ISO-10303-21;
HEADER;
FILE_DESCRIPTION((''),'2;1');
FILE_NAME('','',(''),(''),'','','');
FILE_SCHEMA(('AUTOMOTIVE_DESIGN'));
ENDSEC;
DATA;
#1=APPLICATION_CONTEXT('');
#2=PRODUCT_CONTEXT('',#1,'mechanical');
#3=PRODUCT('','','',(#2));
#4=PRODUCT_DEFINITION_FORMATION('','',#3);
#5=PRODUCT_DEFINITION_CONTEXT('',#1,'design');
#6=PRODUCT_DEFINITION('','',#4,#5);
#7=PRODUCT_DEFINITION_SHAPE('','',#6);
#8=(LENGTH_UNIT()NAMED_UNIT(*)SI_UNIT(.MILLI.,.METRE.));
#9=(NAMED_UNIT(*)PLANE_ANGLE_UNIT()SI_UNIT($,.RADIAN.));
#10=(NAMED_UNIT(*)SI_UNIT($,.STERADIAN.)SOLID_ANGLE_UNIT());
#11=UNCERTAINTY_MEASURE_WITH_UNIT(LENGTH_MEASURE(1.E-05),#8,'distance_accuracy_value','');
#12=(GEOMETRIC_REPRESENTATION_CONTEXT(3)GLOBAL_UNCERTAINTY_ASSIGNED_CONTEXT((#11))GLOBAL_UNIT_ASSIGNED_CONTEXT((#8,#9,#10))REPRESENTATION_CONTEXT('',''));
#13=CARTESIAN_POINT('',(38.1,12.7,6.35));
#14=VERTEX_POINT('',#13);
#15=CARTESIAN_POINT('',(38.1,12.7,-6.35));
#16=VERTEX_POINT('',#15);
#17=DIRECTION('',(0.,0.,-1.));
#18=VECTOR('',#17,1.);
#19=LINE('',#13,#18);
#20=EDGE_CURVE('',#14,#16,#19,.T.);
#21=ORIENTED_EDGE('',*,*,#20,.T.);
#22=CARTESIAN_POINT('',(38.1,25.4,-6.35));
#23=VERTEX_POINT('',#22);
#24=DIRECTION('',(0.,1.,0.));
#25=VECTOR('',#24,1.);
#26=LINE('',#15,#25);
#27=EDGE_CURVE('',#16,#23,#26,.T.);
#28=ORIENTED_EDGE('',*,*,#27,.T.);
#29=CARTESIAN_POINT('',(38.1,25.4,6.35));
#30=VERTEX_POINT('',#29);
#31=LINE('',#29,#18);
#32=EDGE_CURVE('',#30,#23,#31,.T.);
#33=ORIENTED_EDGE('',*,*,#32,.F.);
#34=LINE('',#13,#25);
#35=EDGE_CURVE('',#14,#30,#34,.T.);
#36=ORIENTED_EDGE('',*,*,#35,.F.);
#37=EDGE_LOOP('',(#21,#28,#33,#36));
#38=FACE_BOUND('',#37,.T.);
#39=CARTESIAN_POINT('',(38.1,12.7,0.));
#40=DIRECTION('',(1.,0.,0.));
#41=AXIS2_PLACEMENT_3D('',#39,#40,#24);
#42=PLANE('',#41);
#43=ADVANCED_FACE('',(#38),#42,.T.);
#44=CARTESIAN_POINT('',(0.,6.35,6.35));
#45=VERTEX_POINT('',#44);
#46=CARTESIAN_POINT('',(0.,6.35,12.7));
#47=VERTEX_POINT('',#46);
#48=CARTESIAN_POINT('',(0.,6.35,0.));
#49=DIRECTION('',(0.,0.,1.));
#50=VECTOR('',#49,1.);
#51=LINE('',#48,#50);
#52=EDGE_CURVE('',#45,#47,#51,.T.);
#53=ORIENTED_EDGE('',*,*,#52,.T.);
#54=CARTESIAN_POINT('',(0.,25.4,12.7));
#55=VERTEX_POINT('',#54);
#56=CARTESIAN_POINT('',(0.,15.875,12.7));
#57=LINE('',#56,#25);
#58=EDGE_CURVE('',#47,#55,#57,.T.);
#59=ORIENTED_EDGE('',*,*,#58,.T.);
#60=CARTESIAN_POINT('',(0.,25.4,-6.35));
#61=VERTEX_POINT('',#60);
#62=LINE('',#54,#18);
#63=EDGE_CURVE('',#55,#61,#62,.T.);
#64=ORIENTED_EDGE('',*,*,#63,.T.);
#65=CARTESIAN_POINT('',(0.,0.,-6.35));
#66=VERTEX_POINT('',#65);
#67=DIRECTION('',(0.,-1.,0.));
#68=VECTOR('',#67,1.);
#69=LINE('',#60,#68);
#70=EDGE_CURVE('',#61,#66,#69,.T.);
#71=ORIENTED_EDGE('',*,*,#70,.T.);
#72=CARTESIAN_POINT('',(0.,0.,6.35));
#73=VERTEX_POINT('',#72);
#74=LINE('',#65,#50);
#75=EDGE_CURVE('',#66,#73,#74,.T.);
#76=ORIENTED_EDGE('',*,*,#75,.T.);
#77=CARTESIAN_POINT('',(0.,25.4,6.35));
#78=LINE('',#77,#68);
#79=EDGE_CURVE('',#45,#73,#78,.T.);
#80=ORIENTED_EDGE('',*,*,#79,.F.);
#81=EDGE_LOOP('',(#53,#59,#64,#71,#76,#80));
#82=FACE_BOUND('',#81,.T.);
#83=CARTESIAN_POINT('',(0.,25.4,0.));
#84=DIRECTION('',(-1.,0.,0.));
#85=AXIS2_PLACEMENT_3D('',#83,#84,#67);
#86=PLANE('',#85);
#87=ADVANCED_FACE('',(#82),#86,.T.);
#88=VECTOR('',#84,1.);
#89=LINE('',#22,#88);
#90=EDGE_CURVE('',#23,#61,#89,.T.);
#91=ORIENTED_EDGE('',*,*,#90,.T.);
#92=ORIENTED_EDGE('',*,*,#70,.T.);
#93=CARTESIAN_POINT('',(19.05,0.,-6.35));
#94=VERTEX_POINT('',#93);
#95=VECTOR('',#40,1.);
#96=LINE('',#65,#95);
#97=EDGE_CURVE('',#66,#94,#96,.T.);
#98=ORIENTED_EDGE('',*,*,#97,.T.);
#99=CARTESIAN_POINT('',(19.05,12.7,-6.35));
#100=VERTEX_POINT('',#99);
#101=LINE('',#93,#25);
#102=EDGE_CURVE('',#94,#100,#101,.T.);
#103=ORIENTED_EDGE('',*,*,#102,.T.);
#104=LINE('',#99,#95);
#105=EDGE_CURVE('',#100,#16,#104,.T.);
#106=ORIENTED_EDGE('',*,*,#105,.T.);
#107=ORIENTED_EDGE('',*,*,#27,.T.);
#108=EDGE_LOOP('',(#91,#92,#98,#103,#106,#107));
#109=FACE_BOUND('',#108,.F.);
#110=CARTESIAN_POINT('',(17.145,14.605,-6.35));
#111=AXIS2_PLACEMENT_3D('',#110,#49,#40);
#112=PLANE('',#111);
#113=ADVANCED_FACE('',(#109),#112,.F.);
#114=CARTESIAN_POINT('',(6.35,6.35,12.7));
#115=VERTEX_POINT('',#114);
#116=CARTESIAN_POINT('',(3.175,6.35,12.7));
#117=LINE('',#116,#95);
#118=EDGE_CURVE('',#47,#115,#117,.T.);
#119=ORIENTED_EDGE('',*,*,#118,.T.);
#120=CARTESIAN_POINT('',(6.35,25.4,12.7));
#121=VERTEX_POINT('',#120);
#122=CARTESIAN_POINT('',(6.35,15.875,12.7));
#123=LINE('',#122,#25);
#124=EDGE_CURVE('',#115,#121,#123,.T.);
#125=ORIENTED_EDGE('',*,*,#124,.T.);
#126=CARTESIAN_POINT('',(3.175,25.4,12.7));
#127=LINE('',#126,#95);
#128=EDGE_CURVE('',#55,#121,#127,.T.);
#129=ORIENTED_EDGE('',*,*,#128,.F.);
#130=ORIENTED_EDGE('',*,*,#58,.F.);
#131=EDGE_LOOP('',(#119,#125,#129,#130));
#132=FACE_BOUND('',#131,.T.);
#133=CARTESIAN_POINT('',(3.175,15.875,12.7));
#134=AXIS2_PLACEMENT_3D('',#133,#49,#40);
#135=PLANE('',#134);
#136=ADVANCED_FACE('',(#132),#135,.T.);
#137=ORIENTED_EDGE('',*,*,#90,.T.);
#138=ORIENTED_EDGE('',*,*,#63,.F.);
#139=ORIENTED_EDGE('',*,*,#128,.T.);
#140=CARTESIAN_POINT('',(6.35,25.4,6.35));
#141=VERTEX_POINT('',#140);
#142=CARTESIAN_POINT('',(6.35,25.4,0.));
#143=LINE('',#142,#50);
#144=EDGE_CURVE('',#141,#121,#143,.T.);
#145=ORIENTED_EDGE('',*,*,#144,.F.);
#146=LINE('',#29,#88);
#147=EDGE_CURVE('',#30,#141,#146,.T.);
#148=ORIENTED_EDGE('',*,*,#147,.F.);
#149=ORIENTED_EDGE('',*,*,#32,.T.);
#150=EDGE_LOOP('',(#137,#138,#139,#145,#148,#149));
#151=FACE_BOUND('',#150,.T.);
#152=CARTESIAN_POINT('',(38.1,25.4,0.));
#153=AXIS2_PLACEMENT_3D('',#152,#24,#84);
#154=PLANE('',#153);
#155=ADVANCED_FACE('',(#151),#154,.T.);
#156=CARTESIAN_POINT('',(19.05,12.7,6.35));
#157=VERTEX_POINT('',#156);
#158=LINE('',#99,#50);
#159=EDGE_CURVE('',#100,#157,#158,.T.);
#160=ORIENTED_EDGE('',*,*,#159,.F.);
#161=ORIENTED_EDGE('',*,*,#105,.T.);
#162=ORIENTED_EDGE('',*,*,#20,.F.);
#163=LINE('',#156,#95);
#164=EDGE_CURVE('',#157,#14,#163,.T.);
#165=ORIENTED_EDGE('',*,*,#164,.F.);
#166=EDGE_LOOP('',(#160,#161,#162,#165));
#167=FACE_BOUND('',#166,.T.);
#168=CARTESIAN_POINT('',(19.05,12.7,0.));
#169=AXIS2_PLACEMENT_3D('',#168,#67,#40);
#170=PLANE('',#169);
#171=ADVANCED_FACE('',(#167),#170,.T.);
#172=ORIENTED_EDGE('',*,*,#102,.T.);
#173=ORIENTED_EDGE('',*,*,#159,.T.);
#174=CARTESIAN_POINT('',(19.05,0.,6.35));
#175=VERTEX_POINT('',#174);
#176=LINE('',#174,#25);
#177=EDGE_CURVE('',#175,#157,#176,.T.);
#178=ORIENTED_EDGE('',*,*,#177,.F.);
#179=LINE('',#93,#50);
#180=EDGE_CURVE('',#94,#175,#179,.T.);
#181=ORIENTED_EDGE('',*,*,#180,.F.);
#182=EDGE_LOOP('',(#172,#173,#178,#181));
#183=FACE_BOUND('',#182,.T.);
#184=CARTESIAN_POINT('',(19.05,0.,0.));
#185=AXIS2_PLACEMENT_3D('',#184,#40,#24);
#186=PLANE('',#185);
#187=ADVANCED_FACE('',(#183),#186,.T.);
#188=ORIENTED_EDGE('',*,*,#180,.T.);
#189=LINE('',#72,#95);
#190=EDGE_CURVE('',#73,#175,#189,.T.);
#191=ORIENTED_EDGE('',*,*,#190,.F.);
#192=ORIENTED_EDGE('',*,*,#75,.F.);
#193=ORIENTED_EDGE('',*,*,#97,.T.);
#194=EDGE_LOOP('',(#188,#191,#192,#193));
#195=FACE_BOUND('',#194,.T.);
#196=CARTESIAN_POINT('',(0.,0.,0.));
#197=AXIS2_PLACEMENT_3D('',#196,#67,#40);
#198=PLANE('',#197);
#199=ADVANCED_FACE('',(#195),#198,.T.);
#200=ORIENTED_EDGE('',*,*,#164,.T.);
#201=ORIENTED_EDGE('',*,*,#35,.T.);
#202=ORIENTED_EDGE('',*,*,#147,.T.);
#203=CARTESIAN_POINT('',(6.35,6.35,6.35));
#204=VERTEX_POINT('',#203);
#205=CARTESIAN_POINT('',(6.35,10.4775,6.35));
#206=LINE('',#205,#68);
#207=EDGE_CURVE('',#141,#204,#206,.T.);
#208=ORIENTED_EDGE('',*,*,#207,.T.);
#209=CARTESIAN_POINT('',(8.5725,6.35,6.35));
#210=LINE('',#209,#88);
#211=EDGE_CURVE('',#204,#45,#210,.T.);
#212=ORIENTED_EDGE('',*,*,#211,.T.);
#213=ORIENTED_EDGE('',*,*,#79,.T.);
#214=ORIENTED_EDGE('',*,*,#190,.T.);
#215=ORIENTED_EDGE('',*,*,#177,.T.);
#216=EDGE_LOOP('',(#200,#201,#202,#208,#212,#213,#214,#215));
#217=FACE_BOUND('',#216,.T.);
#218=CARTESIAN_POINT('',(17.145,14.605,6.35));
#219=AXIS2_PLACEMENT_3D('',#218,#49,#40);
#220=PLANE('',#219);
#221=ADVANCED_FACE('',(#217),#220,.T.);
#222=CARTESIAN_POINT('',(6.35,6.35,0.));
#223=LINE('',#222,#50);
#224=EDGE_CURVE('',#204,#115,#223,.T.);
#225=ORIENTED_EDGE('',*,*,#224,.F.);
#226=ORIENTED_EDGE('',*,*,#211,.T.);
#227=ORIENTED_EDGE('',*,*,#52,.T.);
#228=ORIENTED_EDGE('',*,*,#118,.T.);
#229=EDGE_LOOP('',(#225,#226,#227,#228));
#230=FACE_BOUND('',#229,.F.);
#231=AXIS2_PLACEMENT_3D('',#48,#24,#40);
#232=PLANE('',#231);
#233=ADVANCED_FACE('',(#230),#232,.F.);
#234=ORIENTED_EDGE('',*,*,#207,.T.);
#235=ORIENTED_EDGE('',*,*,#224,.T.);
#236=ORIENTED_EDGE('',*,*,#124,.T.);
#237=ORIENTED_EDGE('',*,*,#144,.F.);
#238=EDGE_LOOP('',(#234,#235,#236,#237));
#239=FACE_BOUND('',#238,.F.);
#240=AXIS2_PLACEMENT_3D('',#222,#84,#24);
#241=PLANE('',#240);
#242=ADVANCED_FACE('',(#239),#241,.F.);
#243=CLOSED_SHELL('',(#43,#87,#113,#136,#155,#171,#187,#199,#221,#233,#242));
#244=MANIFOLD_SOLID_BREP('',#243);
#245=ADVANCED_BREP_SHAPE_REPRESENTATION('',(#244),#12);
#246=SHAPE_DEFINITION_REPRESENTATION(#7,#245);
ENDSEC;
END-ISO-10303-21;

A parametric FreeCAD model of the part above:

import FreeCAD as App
import Part
import Sketcher
Q = App.Units.Quantity

doc = App.newDocument("Part")
body = doc.addObject("PartDesign::Body", "Body")

# Sketch on XY plane
sketch1 = body.newObject("Sketcher::SketchObject", "Sketch")
sketch1.AttachmentSupport = (doc.getObject("XY_Plane"), [""])
sketch1.MapMode = "FlatFace"
sketch1.addGeometry([
    Part.LineSegment(App.Vector(0, 25.4, 0), App.Vector(0, 0, 0)),  # 0
    Part.LineSegment(App.Vector(0, 0, 0), App.Vector(19.05, 0, 0)),  # 1
    Part.LineSegment(App.Vector(19.05, 0, 0), App.Vector(19.05, 12.7, 0)),  # 2
    Part.LineSegment(App.Vector(19.05, 12.7, 0), App.Vector(38.1, 12.7, 0)),  # 3
    Part.LineSegment(App.Vector(38.1, 12.7, 0), App.Vector(38.1, 25.4, 0)),  # 4
    Part.LineSegment(App.Vector(38.1, 25.4, 0), App.Vector(0, 25.4, 0)),  # 5
], False)
sketch1.addConstraint([
    Sketcher.Constraint("Coincident", 0, 2, 1, 1),
    Sketcher.Constraint("Coincident", 1, 2, 2, 1),
    Sketcher.Constraint("Coincident", 2, 2, 3, 1),
    Sketcher.Constraint("Coincident", 3, 2, 4, 1),
    Sketcher.Constraint("Coincident", 4, 2, 5, 1),
    Sketcher.Constraint("Coincident", 5, 2, 0, 1),
    Sketcher.Constraint("Vertical", 0),
    Sketcher.Constraint("Horizontal", 1),
    Sketcher.Constraint("Vertical", 2),
    Sketcher.Constraint("Horizontal", 3),
    Sketcher.Constraint("Vertical", 4),
    Sketcher.Constraint("Horizontal", 5),
    Sketcher.Constraint("Coincident", 0, 2, -1, 1),
    Sketcher.Constraint("Equal", 1, 3),
    Sketcher.Constraint("Equal", 2, 4),
    Sketcher.Constraint("DistanceY", 0, 2, 0, 1, Q("1 in")),
    Sketcher.Constraint("DistanceX", 5, 2, 5, 1, Q("1.5 in")),
])
pad1 = body.newObject("PartDesign::Pad", "Pad")
pad1.Profile = sketch1
pad1.Length = Q("0.5 in")
pad1.Midplane = True

# Sketch on XY plane
sketch2 = body.newObject("Sketcher::SketchObject", "Sketch001")
sketch2.AttachmentSupport = (doc.getObject("XY_Plane"), [""])
sketch2.MapMode = "FlatFace"
sketch2.addGeometry([
    Part.LineSegment(App.Vector(0, 25.4, 0), App.Vector(0, 6.35, 0)),
    Part.LineSegment(App.Vector(0, 6.35, 0), App.Vector(6.35, 6.35, 0)),
    Part.LineSegment(App.Vector(6.35, 6.35, 0), App.Vector(6.35, 25.4, 0)),
    Part.LineSegment(App.Vector(6.35, 25.4, 0), App.Vector(0, 25.4, 0)),
], False)
sketch2.addConstraint([
    Sketcher.Constraint("Coincident", 0, 2, 1, 1),
    Sketcher.Constraint("Coincident", 1, 2, 2, 1),
    Sketcher.Constraint("Coincident", 2, 2, 3, 1),
    Sketcher.Constraint("Coincident", 3, 2, 0, 1),
    Sketcher.Constraint("Vertical", 0),
    Sketcher.Constraint("Horizontal", 1),
    Sketcher.Constraint("Vertical", 2),
    Sketcher.Constraint("Horizontal", 3),
    Sketcher.Constraint("PointOnObject", 0, 2, -2),
    Sketcher.Constraint("DistanceY", -1, 1, 2, 2, Q("1 in")),
    Sketcher.Constraint("DistanceX", 1, 1, 1, 2, Q("0.25 in")),
    Sketcher.Constraint("DistanceY", 0, 2, 0, 1, Q("0.75 in")),
])
pad2 = body.newObject("PartDesign::Pad", "Pad001")
pad2.Profile = sketch2
pad2.Length = Q("0.5 in")

doc.recompute()
